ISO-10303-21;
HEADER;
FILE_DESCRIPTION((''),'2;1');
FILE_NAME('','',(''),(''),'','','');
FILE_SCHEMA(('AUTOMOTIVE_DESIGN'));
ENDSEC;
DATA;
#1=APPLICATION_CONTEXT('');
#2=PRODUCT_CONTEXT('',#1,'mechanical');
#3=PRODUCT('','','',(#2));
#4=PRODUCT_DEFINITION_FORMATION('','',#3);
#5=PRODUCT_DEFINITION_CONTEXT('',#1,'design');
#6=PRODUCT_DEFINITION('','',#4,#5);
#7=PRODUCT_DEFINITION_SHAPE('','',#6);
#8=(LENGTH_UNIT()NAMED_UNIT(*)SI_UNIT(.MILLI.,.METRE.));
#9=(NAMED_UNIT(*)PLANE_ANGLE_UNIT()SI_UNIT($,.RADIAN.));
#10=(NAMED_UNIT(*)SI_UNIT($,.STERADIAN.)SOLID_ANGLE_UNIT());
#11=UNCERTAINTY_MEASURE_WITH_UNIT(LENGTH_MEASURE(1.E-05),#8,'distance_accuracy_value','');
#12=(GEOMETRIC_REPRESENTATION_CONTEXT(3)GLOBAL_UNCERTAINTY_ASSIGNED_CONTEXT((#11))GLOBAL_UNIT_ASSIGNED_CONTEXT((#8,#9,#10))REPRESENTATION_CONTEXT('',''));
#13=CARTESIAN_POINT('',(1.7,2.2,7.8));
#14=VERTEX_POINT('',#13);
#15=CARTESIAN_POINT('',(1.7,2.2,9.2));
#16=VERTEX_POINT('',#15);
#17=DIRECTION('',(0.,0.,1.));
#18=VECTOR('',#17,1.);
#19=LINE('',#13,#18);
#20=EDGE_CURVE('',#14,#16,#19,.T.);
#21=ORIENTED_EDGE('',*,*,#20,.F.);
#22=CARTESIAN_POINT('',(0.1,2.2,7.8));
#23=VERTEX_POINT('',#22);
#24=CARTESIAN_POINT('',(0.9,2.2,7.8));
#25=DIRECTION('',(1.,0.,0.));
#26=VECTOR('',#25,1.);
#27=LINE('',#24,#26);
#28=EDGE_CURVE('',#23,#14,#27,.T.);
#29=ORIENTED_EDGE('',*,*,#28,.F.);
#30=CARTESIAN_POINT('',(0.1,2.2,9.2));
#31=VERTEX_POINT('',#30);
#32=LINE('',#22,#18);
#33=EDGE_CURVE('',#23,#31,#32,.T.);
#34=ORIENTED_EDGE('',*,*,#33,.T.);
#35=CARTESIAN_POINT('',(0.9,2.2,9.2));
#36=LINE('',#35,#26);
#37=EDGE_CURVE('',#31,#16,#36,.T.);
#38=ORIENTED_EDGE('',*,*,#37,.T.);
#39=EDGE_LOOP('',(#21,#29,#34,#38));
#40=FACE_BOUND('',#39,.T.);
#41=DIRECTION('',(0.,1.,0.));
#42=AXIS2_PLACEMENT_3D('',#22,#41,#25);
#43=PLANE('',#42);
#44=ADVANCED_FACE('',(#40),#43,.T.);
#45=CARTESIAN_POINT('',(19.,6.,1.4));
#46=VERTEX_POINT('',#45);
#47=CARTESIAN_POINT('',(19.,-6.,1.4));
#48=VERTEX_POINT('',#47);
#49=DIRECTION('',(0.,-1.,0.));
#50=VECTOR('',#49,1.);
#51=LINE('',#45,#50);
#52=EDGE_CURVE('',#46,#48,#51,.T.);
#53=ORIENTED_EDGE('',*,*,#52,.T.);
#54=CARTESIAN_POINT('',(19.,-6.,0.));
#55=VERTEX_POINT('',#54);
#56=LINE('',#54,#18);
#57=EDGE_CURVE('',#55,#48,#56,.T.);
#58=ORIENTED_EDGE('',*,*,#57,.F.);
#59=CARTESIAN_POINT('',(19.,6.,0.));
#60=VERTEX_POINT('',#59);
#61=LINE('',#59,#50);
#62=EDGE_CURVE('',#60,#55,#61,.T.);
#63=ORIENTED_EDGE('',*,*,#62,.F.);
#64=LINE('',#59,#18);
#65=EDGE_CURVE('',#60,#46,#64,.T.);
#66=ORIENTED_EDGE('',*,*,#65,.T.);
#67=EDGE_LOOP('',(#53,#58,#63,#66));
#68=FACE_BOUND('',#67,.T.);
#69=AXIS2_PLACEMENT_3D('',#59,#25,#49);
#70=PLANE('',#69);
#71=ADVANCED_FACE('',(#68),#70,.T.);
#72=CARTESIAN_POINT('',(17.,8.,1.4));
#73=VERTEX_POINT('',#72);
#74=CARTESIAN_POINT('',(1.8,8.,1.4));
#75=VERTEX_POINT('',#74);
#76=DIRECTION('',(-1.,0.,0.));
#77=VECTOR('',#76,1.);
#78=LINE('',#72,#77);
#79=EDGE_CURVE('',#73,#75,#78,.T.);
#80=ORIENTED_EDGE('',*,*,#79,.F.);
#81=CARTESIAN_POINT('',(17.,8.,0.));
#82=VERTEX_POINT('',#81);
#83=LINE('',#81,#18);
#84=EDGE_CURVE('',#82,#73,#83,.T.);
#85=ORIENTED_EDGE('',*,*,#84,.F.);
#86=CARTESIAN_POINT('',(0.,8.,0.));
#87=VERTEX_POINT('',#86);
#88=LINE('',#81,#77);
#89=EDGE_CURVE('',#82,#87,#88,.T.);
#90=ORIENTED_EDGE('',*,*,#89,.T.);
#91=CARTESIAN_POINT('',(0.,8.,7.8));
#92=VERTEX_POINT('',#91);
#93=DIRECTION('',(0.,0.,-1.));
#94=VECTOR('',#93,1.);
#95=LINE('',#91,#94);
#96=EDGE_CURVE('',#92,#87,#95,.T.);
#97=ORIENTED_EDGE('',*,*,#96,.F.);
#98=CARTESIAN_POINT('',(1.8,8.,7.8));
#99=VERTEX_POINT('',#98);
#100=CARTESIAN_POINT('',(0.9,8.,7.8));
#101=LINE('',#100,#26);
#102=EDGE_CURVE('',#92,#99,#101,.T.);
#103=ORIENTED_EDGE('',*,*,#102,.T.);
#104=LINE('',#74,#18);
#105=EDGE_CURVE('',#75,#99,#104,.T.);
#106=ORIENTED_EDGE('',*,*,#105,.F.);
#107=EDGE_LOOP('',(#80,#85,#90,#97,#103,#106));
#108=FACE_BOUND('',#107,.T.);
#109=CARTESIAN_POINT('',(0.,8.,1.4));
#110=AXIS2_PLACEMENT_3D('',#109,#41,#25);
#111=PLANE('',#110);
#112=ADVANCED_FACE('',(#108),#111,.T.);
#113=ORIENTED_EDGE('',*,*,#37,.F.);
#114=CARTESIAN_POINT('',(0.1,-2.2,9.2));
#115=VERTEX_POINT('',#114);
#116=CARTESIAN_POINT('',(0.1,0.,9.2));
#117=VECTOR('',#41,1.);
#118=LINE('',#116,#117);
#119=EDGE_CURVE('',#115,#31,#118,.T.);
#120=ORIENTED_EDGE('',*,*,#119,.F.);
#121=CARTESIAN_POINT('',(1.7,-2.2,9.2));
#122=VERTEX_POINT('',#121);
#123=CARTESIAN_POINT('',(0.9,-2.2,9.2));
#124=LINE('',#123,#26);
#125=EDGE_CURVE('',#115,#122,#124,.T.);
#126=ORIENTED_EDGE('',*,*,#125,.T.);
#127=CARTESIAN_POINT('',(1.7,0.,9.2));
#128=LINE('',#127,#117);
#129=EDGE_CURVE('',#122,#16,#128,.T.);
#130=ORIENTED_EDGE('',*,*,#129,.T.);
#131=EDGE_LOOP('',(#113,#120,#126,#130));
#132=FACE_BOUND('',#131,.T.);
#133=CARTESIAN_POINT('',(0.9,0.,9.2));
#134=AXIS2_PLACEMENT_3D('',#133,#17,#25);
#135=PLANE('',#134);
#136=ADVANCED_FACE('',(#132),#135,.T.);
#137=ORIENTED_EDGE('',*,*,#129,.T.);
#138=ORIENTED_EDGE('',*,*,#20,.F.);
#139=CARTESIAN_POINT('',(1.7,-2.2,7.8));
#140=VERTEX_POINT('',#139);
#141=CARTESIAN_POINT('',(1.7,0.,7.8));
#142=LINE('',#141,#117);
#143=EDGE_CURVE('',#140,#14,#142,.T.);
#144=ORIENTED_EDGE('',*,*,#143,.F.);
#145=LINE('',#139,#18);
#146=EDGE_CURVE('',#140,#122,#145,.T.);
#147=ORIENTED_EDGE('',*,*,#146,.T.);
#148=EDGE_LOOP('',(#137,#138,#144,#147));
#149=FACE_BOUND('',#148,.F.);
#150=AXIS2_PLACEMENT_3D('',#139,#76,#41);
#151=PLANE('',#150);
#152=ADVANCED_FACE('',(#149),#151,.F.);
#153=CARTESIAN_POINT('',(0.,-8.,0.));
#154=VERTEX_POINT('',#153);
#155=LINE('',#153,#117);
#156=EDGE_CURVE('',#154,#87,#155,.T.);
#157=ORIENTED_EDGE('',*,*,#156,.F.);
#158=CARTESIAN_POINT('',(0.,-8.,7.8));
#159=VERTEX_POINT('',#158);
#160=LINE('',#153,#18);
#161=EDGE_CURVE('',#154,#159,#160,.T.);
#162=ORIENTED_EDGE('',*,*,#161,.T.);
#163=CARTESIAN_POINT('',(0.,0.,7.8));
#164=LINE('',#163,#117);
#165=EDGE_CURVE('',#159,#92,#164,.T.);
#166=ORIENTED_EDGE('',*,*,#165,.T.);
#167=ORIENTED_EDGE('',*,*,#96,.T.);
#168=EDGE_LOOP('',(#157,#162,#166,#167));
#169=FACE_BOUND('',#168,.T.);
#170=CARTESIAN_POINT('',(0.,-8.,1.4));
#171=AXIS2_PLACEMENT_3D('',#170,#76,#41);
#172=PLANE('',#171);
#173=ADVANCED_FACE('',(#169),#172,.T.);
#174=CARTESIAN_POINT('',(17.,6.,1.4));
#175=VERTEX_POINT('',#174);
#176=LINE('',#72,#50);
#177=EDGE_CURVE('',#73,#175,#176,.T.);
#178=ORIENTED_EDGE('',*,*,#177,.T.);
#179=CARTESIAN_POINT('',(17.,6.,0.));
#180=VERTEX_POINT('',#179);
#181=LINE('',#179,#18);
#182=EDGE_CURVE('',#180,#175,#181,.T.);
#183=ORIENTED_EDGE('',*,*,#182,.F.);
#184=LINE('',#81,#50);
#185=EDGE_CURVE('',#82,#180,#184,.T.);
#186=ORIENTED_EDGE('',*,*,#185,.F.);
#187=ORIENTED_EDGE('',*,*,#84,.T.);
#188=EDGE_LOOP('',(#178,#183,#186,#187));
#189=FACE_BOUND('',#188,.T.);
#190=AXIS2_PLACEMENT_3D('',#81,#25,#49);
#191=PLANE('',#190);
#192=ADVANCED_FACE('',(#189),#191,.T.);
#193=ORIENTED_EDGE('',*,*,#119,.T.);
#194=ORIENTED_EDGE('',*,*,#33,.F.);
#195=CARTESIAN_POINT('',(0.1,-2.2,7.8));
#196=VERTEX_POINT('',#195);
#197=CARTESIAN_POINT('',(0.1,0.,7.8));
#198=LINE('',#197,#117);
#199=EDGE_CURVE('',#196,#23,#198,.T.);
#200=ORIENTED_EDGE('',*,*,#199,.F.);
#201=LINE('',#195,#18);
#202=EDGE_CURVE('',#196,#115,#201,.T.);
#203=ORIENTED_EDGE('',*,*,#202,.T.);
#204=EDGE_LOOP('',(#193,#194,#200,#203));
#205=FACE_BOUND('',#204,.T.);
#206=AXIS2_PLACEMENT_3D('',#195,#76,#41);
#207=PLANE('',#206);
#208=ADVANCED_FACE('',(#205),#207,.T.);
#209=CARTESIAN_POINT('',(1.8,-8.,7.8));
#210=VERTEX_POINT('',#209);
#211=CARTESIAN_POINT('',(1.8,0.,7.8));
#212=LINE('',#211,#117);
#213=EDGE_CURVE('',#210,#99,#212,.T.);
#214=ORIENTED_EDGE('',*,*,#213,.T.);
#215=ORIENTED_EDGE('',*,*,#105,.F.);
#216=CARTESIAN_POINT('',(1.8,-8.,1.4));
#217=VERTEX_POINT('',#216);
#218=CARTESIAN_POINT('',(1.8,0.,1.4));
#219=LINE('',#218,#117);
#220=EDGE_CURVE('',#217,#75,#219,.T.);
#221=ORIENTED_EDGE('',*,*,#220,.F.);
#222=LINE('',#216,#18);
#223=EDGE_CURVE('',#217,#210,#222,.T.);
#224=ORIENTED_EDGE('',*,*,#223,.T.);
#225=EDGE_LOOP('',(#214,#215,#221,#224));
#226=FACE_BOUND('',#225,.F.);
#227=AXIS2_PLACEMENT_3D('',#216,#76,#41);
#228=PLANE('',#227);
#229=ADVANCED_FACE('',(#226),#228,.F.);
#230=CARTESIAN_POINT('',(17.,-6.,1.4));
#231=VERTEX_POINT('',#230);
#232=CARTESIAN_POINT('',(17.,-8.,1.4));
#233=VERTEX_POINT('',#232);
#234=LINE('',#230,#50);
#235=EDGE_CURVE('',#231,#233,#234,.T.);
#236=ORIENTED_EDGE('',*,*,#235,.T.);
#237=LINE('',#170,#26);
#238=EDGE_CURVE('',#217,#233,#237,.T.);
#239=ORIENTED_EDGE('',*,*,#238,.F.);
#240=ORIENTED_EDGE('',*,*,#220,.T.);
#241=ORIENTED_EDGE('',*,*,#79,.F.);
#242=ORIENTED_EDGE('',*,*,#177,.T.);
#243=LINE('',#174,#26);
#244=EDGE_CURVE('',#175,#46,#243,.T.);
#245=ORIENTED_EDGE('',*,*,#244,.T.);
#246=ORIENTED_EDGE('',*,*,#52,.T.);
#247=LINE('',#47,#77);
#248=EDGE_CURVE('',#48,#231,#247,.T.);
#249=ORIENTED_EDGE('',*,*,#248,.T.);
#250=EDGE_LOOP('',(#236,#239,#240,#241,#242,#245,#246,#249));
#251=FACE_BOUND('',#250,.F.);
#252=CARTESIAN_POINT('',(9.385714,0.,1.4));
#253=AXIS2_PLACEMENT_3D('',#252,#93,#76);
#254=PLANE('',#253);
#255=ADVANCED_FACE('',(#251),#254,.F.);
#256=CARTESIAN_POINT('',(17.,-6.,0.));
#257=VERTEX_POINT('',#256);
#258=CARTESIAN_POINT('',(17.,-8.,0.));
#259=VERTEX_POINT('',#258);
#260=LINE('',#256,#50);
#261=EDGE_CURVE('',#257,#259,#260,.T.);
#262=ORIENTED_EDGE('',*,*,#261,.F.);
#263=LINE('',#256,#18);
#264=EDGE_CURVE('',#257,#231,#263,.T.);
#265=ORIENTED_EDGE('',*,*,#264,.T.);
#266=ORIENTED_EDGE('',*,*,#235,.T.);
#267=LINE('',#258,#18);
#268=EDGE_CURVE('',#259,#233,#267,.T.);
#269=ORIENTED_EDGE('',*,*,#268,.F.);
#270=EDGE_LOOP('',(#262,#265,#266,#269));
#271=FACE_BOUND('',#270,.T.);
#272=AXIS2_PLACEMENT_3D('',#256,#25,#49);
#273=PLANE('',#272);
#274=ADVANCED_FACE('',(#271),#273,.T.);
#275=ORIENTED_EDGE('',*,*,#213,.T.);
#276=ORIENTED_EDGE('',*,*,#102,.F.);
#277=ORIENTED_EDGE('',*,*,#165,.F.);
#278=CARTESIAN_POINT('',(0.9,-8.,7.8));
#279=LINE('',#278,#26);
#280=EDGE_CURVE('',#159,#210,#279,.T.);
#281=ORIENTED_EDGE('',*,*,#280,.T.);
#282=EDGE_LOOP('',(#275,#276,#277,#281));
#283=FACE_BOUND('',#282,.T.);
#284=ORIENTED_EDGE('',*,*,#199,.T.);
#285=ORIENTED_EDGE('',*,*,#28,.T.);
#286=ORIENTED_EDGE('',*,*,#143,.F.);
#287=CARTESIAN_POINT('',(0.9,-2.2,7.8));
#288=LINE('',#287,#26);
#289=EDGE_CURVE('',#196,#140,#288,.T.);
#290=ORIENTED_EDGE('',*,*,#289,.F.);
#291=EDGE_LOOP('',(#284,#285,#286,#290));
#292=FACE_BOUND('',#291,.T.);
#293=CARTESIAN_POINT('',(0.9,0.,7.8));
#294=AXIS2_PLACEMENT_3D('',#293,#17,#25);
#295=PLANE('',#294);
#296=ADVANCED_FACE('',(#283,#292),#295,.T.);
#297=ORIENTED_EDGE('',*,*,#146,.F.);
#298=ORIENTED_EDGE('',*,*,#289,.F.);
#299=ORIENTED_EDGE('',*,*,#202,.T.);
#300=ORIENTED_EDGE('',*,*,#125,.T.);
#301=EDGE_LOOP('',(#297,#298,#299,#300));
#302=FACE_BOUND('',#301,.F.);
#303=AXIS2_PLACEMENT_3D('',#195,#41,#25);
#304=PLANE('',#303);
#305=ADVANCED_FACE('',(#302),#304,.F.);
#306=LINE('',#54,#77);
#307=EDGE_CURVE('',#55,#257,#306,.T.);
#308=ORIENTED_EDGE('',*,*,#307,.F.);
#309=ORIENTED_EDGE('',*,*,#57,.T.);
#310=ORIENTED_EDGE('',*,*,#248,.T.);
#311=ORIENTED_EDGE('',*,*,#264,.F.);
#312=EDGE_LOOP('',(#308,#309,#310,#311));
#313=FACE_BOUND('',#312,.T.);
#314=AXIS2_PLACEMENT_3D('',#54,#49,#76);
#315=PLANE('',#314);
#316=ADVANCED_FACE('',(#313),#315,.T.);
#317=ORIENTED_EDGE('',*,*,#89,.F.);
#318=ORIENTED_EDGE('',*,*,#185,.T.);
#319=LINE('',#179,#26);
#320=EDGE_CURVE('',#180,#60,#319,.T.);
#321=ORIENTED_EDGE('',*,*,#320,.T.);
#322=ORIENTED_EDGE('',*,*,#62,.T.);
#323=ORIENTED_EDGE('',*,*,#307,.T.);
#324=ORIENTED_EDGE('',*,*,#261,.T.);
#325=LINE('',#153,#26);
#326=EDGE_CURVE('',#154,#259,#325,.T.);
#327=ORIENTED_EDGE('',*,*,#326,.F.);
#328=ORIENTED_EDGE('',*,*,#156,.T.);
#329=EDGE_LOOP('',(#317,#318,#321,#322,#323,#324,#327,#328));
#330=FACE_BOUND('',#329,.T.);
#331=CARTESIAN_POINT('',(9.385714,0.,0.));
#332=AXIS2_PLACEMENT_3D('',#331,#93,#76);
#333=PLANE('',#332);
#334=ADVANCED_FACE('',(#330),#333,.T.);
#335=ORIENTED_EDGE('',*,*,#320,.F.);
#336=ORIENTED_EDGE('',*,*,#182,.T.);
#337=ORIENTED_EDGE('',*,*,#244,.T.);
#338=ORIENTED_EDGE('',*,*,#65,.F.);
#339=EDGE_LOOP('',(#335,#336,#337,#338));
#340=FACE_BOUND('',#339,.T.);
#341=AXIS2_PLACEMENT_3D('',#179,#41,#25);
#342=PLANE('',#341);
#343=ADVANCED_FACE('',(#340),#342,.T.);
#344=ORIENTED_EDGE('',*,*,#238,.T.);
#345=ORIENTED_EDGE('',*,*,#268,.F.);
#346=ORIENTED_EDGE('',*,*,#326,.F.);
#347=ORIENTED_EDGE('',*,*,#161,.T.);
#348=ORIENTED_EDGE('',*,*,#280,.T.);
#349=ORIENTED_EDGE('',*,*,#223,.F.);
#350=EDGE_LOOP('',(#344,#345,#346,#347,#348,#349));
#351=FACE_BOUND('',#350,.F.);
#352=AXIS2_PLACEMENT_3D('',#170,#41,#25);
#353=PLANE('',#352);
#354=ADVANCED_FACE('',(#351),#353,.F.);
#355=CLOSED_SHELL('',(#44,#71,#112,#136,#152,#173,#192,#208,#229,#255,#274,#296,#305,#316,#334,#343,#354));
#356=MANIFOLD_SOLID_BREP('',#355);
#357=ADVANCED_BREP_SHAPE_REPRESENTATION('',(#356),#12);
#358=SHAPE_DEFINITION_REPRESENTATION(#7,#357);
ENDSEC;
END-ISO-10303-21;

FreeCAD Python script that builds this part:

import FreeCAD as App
import Part
import Sketcher
Q = App.Units.Quantity

doc = App.newDocument("Part")
body = doc.addObject("PartDesign::Body", "Body")

sketch1 = body.newObject("Sketcher::SketchObject", "Sketch")
sketch1.AttachmentSupport = (doc.getObject("XY_Plane"), [""])
sketch1.MapMode = "FlatFace"
sketch1.addGeometry(Part.LineSegment(App.Vector(17, 8, 0), App.Vector(0, 8, 0)), False)
sketch1.addGeometry(Part.LineSegment(App.Vector(0, 8, 0), App.Vector(0, -8, 0)), False)
sketch1.addGeometry(Part.LineSegment(App.Vector(0, -8, 0), App.Vector(17, -8, 0)), False)
sketch1.addGeometry(Part.LineSegment(App.Vector(17, -8, 0), App.Vector(17, -6, 0)), False)
sketch1.addGeometry(Part.LineSegment(App.Vector(17, -6, 0), App.Vector(19, -6, 0)), False)
sketch1.addGeometry(Part.LineSegment(App.Vector(19, -6, 0), App.Vector(19, 6, 0)), False)
sketch1.addGeometry(Part.LineSegment(App.Vector(19, 6, 0), App.Vector(17, 6, 0)), False)
sketch1.addGeometry(Part.LineSegment(App.Vector(17, 6, 0), App.Vector(17, 8, 0)), False)
sketch1.addConstraint(Sketcher.Constraint("Coincident", 0, 2, 1, 1))
sketch1.addConstraint(Sketcher.Constraint("Coincident", 1, 2, 2, 1))
sketch1.addConstraint(Sketcher.Constraint("Coincident", 2, 2, 3, 1))
sketch1.addConstraint(Sketcher.Constraint("Coincident", 3, 2, 4, 1))
sketch1.addConstraint(Sketcher.Constraint("Coincident", 4, 2, 5, 1))
sketch1.addConstraint(Sketcher.Constraint("Coincident", 5, 2, 6, 1))
sketch1.addConstraint(Sketcher.Constraint("Coincident", 6, 2, 7, 1))
sketch1.addConstraint(Sketcher.Constraint("Coincident", 7, 2, 0, 1))
sketch1.addConstraint(Sketcher.Constraint("Horizontal", 0))
sketch1.addConstraint(Sketcher.Constraint("Vertical", 1))
sketch1.addConstraint(Sketcher.Constraint("Horizontal", 2))
sketch1.addConstraint(Sketcher.Constraint("Vertical", 3))
sketch1.addConstraint(Sketcher.Constraint("Horizontal", 4))
sketch1.addConstraint(Sketcher.Constraint("Vertical", 5))
sketch1.addConstraint(Sketcher.Constraint("Horizontal", 6))
sketch1.addConstraint(Sketcher.Constraint("Vertical", 7))
sketch1.addConstraint(Sketcher.Constraint("Symmetric", 0, 2, 1, 2, -1, 1))
sketch1.addConstraint(Sketcher.Constraint("Symmetric", 3, 2, 6, 2, -1))
sketch1.addConstraint(Sketcher.Constraint("Equal", 6, 3))
sketch1.addConstraint(Sketcher.Constraint("DistanceX", 0, 2, 0, 1, Q("17 mm")))
sketch1.addConstraint(Sketcher.Constraint("DistanceX", 4, 1, 4, 2, Q("2 mm")))
sketch1.addConstraint(Sketcher.Constraint("DistanceY", 1, 2, 1, 1, Q("16 mm")))
pad1 = body.newObject("PartDesign::Pad", "Pad")
pad1.Profile = sketch1
pad1.Length = 1.4

sketch2 = body.newObject("Sketcher::SketchObject", "Sketch001")
sketch2.AttachmentSupport = (doc.getObject("XY_Plane"), [""])
sketch2.MapMode = "FlatFace"
sketch2.AttachmentOffset = App.Placement(App.Vector(0, 0, 1.4), App.Rotation())
sketch2.addGeometry(Part.LineSegment(App.Vector(0, 8, 0), App.Vector(0, -8, 0)), False)
sketch2.addGeometry(Part.LineSegment(App.Vector(0, -8, 0), App.Vector(1.8, -8, 0)), False)
sketch2.addGeometry(Part.LineSegment(App.Vector(1.8, -8, 0), App.Vector(1.8, 8, 0)), False)
sketch2.addGeometry(Part.LineSegment(App.Vector(1.8, 8, 0), App.Vector(0, 8, 0)), False)
sketch2.addConstraint(Sketcher.Constraint("Coincident", 0, 2, 1, 1))
sketch2.addConstraint(Sketcher.Constraint("Coincident", 1, 2, 2, 1))
sketch2.addConstraint(Sketcher.Constraint("Coincident", 2, 2, 3, 1))
sketch2.addConstraint(Sketcher.Constraint("Coincident", 3, 2, 0, 1))
sketch2.addConstraint(Sketcher.Constraint("Vertical", 0))
sketch2.addConstraint(Sketcher.Constraint("Horizontal", 1))
sketch2.addConstraint(Sketcher.Constraint("Vertical", 2))
sketch2.addConstraint(Sketcher.Constraint("Horizontal", 3))
sketch2.addConstraint(Sketcher.Constraint("Symmetric", 0, 2, 3, 2, -1, 1))
sketch2.addConstraint(Sketcher.Constraint("DistanceY", 0, 2, 0, 1, Q("16 mm")))
sketch2.addConstraint(Sketcher.Constraint("DistanceX", 1, 1, 1, 2, Q("1.8 mm")))
pad2 = body.newObject("PartDesign::Pad", "Pad001")
pad2.Profile = sketch2
pad2.Length = 6.4

sketch3 = body.newObject("Sketcher::SketchObject", "Sketch002")
sketch3.AttachmentSupport = (doc.getObject("XY_Plane"), [""])
sketch3.MapMode = "FlatFace"
sketch3.AttachmentOffset = App.Placement(App.Vector(0, 0, 7.8), App.Rotation())
sketch3.addGeometry(Part.LineSegment(App.Vector(0.1, 2.2, 0), App.Vector(0.1, -2.2, 0)), False)
sketch3.addGeometry(Part.LineSegment(App.Vector(0.1, -2.2, 0), App.Vector(1.7, -2.2, 0)), False)
sketch3.addGeometry(Part.LineSegment(App.Vector(1.7, -2.2, 0), App.Vector(1.7, 2.2, 0)), False)
sketch3.addGeometry(Part.LineSegment(App.Vector(1.7, 2.2, 0), App.Vector(0.1, 2.2, 0)), False)
sketch3.addConstraint(Sketcher.Constraint("Coincident", 0, 2, 1, 1))
sketch3.addConstraint(Sketcher.Constraint("Coincident", 1, 2, 2, 1))
sketch3.addConstraint(Sketcher.Constraint("Coincident", 2, 2, 3, 1))
sketch3.addConstraint(Sketcher.Constraint("Coincident", 3, 2, 0, 1))
sketch3.addConstraint(Sketcher.Constraint("Vertical", 0))
sketch3.addConstraint(Sketcher.Constraint("Horizontal", 1))
sketch3.addConstraint(Sketcher.Constraint("Vertical", 2))
sketch3.addConstraint(Sketcher.Constraint("Horizontal", 3))
sketch3.addConstraint(Sketcher.Constraint("DistanceX", 1, 1, 1, 2, Q("1.6 mm")))
sketch3.addConstraint(Sketcher.Constraint("DistanceY", 0, 2, 0, 1, Q("4.4 mm")))
sketch3.addConstraint(Sketcher.Constraint("DistanceX", -1, 1, 0, 2, Q("0.1 mm")))
sketch3.addConstraint(Sketcher.Constraint("DistanceY", 0, 2, -1, 1, Q("2.2 mm")))
pad3 = body.newObject("PartDesign::Pad", "Pad002")
pad3.Profile = sketch3
pad3.Length = 1.4

doc.recompute()
